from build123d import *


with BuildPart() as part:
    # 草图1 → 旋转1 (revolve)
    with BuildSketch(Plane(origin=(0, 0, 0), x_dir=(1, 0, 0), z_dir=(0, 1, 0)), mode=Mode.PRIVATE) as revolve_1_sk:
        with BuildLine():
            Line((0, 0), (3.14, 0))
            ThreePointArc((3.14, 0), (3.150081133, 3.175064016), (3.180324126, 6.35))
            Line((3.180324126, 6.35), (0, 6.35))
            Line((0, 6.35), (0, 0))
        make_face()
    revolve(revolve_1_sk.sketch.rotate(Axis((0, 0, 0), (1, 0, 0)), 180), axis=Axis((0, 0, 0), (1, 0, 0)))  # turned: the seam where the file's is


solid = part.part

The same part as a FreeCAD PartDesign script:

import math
import FreeCAD as App
import Part
import Sketcher
from FreeCAD import Vector
Q = App.Units.Quantity

doc = App.newDocument("Part")
body = doc.addObject("PartDesign::Body", "Body")

sketch1 = body.newObject("Sketcher::SketchObject", "Sketch")
sketch1.AttachmentSupport = (doc.getObject("XZ_Plane"), [""])
sketch1.MapMode = "FlatFace"
sketch1.addGeometry(Part.LineSegment(Vector(0, 0, 0), Vector(3.1, 0, 0)), False)
sketch1.addGeometry(Part.ArcOfCircle(Part.Circle(Vector(503.1, 0, 0), Vector(0, 0, 1), 500), math.radians(180), math.radians(180.73)), False)
sketch1.addGeometry(Part.LineSegment(Vector(3.2, -6.3, 0), Vector(0, -6.3, 0)), False)
sketch1.addGeometry(Part.LineSegment(Vector(0, -6.3, 0), Vector(0, 0, 0)), False)
sketch1.addConstraint(Sketcher.Constraint("Coincident", 0, 2, 1, 1))
sketch1.addConstraint(Sketcher.Constraint("Coincident", 1, 2, 2, 1))
sketch1.addConstraint(Sketcher.Constraint("Coincident", 2, 2, 3, 1))
sketch1.addConstraint(Sketcher.Constraint("Coincident", 3, 2, 0, 1))
sketch1.addConstraint(Sketcher.Constraint("Horizontal", 0))
sketch1.addConstraint(Sketcher.Constraint("Horizontal", 2))
sketch1.addConstraint(Sketcher.Constraint("Vertical", 3))
sketch1.addConstraint(Sketcher.Constraint("Coincident", 3, 2, -1, 1))
sketch1.addConstraint(Sketcher.Constraint("PointOnObject", 1, 3, -1))
sketch1.addConstraint(Sketcher.Constraint("DistanceY", 3, 1, 3, 2, Q("0.25 in")))
sketch1.addConstraint(Sketcher.Constraint("DistanceX", 0, 1, 0, 2, Q("3.14 mm")))
sketch1.addConstraint(Sketcher.Constraint("Radius", 1, Q("499.999994 mm")))
revolution = body.newObject("PartDesign::Revolution", "Revolution")
revolution.Profile = sketch1
revolution.ReferenceAxis = (sketch1, ["H_Axis"])
revolution.Angle = 360

doc.recompute()
